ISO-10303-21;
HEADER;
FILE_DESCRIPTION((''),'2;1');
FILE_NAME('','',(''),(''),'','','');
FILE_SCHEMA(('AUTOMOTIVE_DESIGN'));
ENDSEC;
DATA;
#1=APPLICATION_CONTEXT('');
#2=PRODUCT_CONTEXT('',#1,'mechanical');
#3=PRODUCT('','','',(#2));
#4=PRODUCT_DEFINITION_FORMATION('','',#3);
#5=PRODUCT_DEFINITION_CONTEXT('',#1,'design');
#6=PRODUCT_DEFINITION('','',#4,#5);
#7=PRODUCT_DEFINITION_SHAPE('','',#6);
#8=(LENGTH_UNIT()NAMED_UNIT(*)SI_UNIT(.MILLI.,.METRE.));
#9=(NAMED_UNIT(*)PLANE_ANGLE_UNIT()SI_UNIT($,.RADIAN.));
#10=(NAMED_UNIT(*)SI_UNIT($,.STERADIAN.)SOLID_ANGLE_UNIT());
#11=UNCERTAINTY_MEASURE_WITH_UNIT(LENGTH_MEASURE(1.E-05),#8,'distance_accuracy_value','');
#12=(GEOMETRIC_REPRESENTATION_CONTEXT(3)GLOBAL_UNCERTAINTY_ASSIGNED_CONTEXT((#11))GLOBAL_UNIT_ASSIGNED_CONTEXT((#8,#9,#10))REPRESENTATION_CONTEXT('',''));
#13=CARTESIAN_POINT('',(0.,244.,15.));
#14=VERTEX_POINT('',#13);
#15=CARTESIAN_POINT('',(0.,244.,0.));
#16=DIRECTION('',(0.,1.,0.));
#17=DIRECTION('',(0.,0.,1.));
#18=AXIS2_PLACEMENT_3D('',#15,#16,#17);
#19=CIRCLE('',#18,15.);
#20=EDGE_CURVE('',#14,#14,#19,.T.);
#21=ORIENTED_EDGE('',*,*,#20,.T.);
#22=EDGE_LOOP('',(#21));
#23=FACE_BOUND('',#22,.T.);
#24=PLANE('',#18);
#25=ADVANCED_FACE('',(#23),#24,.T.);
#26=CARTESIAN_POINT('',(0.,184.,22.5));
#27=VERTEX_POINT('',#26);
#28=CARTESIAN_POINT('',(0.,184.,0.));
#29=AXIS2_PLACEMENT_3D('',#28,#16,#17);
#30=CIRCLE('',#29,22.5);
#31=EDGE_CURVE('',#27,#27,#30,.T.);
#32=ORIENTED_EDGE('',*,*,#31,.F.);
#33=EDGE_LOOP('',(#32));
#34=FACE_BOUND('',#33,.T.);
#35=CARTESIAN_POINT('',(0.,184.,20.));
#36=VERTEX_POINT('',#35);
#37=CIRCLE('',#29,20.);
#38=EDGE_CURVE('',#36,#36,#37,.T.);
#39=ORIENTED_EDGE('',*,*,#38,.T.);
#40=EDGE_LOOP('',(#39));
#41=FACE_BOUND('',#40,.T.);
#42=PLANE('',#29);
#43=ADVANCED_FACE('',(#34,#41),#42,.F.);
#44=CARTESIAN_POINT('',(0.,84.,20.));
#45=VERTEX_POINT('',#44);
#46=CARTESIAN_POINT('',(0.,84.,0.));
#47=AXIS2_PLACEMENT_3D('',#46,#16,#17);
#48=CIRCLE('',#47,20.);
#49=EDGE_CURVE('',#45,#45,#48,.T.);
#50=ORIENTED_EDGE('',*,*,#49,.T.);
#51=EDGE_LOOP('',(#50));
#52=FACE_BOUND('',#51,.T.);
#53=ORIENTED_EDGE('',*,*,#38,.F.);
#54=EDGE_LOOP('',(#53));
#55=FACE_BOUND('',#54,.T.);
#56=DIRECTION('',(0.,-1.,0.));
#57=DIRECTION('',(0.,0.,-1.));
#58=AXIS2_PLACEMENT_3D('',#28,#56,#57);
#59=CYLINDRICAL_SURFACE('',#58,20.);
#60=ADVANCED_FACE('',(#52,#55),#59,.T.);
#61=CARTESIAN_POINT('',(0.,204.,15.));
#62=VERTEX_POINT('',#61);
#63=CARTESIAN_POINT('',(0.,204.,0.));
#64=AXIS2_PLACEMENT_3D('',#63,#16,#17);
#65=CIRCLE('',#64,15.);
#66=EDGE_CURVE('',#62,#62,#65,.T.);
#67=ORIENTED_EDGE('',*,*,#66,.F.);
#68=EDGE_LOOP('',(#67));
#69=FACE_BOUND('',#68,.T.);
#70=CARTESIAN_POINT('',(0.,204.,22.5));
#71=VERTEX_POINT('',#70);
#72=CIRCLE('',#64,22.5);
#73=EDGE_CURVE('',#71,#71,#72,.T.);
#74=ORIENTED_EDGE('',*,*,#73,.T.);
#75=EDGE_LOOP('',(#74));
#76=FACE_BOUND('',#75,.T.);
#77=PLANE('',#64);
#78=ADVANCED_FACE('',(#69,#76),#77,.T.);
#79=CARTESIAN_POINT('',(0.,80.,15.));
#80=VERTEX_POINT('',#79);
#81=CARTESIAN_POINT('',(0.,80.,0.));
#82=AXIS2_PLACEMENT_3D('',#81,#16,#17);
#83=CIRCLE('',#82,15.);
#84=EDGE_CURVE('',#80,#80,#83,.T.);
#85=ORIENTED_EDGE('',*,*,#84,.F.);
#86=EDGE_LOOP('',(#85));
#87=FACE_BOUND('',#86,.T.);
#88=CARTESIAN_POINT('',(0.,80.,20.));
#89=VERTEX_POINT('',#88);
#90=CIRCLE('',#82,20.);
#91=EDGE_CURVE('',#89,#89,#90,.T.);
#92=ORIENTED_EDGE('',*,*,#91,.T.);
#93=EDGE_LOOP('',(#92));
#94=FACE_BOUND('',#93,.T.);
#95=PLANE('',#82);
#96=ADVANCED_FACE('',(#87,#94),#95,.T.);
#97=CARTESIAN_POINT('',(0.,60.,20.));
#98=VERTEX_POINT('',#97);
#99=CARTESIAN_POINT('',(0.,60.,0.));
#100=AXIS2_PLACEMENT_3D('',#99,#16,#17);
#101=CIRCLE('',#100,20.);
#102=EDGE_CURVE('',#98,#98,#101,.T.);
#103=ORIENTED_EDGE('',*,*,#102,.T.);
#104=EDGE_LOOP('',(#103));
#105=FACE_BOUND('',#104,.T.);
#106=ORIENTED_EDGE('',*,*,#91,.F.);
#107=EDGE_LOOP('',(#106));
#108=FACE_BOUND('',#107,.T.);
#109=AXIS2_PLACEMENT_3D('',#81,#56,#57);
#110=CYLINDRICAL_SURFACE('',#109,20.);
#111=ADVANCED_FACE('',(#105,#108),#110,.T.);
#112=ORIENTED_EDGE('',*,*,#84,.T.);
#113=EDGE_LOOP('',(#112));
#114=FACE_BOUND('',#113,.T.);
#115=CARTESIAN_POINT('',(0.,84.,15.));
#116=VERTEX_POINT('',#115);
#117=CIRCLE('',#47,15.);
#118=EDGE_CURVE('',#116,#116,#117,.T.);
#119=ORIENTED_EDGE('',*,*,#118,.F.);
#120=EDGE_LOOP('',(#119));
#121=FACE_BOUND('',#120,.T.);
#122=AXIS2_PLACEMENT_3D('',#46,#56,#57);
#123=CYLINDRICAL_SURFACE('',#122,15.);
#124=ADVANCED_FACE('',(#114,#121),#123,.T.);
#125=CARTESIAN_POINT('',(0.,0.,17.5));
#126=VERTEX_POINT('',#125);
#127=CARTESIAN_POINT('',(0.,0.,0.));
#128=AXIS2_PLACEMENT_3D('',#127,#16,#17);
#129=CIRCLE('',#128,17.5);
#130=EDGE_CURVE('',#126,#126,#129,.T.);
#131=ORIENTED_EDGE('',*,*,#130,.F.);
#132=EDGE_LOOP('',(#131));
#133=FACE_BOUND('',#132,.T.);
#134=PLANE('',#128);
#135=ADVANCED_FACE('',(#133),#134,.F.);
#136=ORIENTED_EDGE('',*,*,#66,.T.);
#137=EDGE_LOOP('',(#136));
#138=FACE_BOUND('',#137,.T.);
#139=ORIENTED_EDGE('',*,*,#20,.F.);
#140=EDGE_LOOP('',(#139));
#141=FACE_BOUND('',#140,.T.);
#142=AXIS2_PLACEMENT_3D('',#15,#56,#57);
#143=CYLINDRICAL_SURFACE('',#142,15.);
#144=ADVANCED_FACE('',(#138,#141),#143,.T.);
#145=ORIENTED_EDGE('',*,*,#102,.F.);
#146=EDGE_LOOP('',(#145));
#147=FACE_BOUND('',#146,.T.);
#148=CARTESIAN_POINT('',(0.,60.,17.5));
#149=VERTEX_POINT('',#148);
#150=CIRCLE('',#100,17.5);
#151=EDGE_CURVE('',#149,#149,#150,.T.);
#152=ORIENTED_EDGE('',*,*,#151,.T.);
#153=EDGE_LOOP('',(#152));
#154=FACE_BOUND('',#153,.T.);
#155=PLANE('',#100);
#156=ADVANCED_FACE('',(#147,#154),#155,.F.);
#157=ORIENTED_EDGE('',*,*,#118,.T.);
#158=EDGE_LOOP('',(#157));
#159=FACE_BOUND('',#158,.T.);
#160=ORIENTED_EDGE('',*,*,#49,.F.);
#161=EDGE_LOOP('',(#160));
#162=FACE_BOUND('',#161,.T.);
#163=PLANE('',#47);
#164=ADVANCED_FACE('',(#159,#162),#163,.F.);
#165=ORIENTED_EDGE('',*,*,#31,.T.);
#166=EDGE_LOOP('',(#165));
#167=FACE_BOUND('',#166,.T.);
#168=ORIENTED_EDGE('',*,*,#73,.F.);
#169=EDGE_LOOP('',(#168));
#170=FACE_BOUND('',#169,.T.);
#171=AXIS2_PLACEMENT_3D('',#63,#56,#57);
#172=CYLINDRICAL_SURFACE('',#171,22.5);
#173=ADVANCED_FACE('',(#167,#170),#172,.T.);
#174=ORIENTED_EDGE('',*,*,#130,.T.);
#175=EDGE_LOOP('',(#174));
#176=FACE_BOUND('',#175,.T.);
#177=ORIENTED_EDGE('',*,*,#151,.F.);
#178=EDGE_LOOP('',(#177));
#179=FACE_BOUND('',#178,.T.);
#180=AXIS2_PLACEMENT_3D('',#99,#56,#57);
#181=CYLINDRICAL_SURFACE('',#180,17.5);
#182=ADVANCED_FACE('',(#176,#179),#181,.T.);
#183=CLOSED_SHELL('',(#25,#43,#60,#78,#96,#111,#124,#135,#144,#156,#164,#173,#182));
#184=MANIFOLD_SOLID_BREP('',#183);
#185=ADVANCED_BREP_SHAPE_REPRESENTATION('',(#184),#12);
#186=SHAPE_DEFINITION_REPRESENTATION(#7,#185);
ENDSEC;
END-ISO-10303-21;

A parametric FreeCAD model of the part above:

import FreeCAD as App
import Part
import Sketcher
from FreeCAD import Vector

doc = App.newDocument("Part")
body = doc.addObject("PartDesign::Body", "Body")

# Sketch on XZ plane
sketch1 = doc.addObject("Sketcher::SketchObject", "Sketch")
body.addObject(sketch1)
sketch1.AttachmentSupport = (doc.XZ_Plane, [""])
sketch1.MapMode = "FlatFace"
sketch1.addGeometry(Part.Circle(Vector(0, 0, 0), Vector(0, 0, 1), 18), False)
sketch1.addConstraint([
    Sketcher.Constraint("Coincident", 0, 3, -1, 1),
    Sketcher.Constraint("Diameter", 0, 35.0),
])
pad1 = doc.addObject("PartDesign::Pad", "Pad")
body.addObject(pad1)
pad1.Profile = sketch1
pad1.Length = 60
pad1.Reversed = True

# Sketch on XZ plane
sketch2 = doc.addObject("Sketcher::SketchObject", "Sketch001")
body.addObject(sketch2)
sketch2.AttachmentSupport = (doc.XZ_Plane, [""])
sketch2.MapMode = "FlatFace"
sketch2.AttachmentOffset = App.Placement(Vector(0, 0, -60), App.Rotation())
sketch2.addGeometry(Part.Circle(Vector(0, 0, 0), Vector(0, 0, 1), 20), False)
sketch2.addConstraint([
    Sketcher.Constraint("Coincident", 0, 3, -1, 1),
    Sketcher.Constraint("Diameter", 0, 40.0),
])
pad2 = doc.addObject("PartDesign::Pad", "Pad001")
body.addObject(pad2)
pad2.Profile = sketch2
pad2.Length = 20
pad2.Reversed = True

# Sketch on XZ plane
sketch3 = doc.addObject("Sketcher::SketchObject", "Sketch002")
body.addObject(sketch3)
sketch3.AttachmentSupport = (doc.XZ_Plane, [""])
sketch3.MapMode = "FlatFace"
sketch3.AttachmentOffset = App.Placement(Vector(0, 0, -80), App.Rotation())
sketch3.addGeometry(Part.Circle(Vector(0, 0, 0), Vector(0, 0, 1), 15), False)
sketch3.addConstraint([
    Sketcher.Constraint("Coincident", 0, 3, -1, 1),
    Sketcher.Constraint("Diameter", 0, 30.0),
])
pad3 = doc.addObject("PartDesign::Pad", "Pad002")
body.addObject(pad3)
pad3.Profile = sketch3
pad3.Length = 4
pad3.Reversed = True

# Sketch on XZ plane
sketch4 = doc.addObject("Sketcher::SketchObject", "Sketch003")
body.addObject(sketch4)
sketch4.AttachmentSupport = (doc.XZ_Plane, [""])
sketch4.MapMode = "FlatFace"
sketch4.AttachmentOffset = App.Placement(Vector(0, 0, -84), App.Rotation())
sketch4.addGeometry(Part.Circle(Vector(0, 0, 0), Vector(0, 0, 1), 20), False)
sketch4.addConstraint([
    Sketcher.Constraint("Coincident", 0, 3, -1, 1),
    Sketcher.Constraint("Diameter", 0, 40.0),
])
pad4 = doc.addObject("PartDesign::Pad", "Pad003")
body.addObject(pad4)
pad4.Profile = sketch4
pad4.Length = 100
pad4.Reversed = True

# Sketch on XZ plane
sketch5 = doc.addObject("Sketcher::SketchObject", "Sketch004")
body.addObject(sketch5)
sketch5.AttachmentSupport = (doc.XZ_Plane, [""])
sketch5.MapMode = "FlatFace"
sketch5.AttachmentOffset = App.Placement(Vector(0, 0, -184), App.Rotation())
sketch5.addGeometry(Part.Circle(Vector(0, 0, 0), Vector(0, 0, 1), 22), False)
sketch5.addConstraint([
    Sketcher.Constraint("Coincident", 0, 3, -1, 1),
    Sketcher.Constraint("Diameter", 0, 45.0),
])
pad5 = doc.addObject("PartDesign::Pad", "Pad004")
body.addObject(pad5)
pad5.Profile = sketch5
pad5.Length = 20
pad5.Reversed = True

# Sketch on XZ plane
sketch6 = doc.addObject("Sketcher::SketchObject", "Sketch005")
body.addObject(sketch6)
sketch6.AttachmentSupport = (doc.XZ_Plane, [""])
sketch6.MapMode = "FlatFace"
sketch6.AttachmentOffset = App.Placement(Vector(0, 0, -204), App.Rotation())
sketch6.addGeometry(Part.Circle(Vector(0, 0, 0), Vector(0, 0, 1), 15), False)
sketch6.addConstraint([
    Sketcher.Constraint("Coincident", 0, 3, -1, 1),
    Sketcher.Constraint("Diameter", 0, 30.0),
])
pad6 = doc.addObject("PartDesign::Pad", "Pad005")
body.addObject(pad6)
pad6.Profile = sketch6
pad6.Length = 40
pad6.Reversed = True

doc.recompute()
